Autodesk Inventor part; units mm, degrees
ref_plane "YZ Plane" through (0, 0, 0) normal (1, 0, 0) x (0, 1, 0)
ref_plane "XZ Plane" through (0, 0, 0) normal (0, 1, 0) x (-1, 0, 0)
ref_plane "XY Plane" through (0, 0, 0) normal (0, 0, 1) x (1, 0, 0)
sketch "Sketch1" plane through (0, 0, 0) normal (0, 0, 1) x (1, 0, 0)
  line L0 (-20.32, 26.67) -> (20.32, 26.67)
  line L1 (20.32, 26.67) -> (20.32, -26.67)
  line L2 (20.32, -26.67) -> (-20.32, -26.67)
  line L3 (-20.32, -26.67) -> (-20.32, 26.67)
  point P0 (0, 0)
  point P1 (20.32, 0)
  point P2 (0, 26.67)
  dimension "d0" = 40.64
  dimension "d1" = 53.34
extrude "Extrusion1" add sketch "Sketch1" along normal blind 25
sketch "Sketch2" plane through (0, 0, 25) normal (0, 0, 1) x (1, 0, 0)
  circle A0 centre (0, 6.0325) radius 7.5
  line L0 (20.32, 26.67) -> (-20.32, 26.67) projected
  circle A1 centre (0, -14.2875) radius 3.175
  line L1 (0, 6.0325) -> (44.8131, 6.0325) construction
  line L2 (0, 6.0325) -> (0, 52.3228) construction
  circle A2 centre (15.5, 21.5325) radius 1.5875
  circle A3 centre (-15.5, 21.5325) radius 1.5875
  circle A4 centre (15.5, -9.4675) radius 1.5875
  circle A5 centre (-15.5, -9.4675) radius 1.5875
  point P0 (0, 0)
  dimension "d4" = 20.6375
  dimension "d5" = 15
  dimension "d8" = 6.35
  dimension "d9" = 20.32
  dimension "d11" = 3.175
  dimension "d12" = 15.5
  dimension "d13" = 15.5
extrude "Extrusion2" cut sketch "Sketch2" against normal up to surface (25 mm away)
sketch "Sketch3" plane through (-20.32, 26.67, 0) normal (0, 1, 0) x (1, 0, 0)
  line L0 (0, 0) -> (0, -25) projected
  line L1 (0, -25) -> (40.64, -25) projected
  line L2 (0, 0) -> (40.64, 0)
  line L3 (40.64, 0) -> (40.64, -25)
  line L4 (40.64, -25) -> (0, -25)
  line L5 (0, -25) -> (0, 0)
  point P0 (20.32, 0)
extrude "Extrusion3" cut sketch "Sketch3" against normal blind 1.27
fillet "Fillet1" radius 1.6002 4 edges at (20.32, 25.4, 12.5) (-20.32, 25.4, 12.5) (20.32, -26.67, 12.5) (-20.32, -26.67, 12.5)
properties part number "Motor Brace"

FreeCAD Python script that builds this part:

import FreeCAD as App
import Part
import Sketcher
Q = App.Units.Quantity


def edges_at(feature, points):
    """Names of the edges that pass closest to the given points."""
    edges = feature.Shape.Edges
    near = lambda p: min(range(len(edges)), key=lambda i: edges[i].distToShape(Part.Vertex(*p))[0])
    return sorted({f"Edge{near(p) + 1}" for p in points})


def add_polygon(sketch, points):
    """Adds a closed chain of lines whose ends are joined by coincident constraints."""
    first, n = sketch.GeometryCount, len(points)
    for a, b in zip(points, points[1:] + points[:1]):
        sketch.addGeometry(Part.LineSegment(App.Vector(*a, 0), App.Vector(*b, 0)), False)
    for i in range(n):
        sketch.addConstraint(Sketcher.Constraint("Coincident", first + i, 2, first + (i + 1) % n, 1))

doc = App.newDocument("Part")
body = doc.addObject("PartDesign::Body", "Body")

# Sketch on XY plane
sketch1 = doc.addObject("Sketcher::SketchObject", "Sketch")
body.addObject(sketch1)
sketch1.AttachmentSupport = (doc.XY_Plane, [""])
sketch1.MapMode = "FlatFace"
add_polygon(sketch1, [(20.32, 26.67), (-20.32, 26.67), (-20.32, -26.67), (20.32, -26.67)])  # lines 0-3
sketch1.addConstraint(Sketcher.Constraint("Horizontal", 0))
sketch1.addConstraint(Sketcher.Constraint("Vertical", 1))
sketch1.addConstraint(Sketcher.Constraint("Horizontal", 2))
sketch1.addConstraint(Sketcher.Constraint("Vertical", 3))
sketch1.addConstraint(Sketcher.Constraint("Symmetric", 0, 2, 2, 2, -1, 1))
sketch1.addConstraint(Sketcher.Constraint("DistanceX", 0, 2, 0, 1, Q("1.6 in")))
sketch1.addConstraint(Sketcher.Constraint("DistanceY", 1, 2, 1, 1, Q("2.1 in")))
pad1 = doc.addObject("PartDesign::Pad", "Pad")
body.addObject(pad1)
pad1.Profile = sketch1
pad1.Length = 25

# Sketch on XY plane
sketch2 = doc.addObject("Sketcher::SketchObject", "Sketch001")
body.addObject(sketch2)
sketch2.AttachmentSupport = (doc.XY_Plane, [""])
sketch2.MapMode = "FlatFace"
sketch2.AttachmentOffset = App.Placement(App.Vector(0, 0, 25), App.Rotation())
sketch2.addGeometry(Part.Circle(App.Vector(0, 6.0325, 0), App.Vector(0, 0, 1), 7.5), False)
sketch2.addGeometry(Part.Circle(App.Vector(0, -14.2875, 0), App.Vector(0, 0, 1), 3.175), False)
sketch2.addGeometry(Part.Circle(App.Vector(15.5, 21.5325, 0), App.Vector(0, 0, 1), 1.5875), False)
sketch2.addGeometry(Part.Circle(App.Vector(-15.5, 21.5325, 0), App.Vector(0, 0, 1), 1.5875), False)
sketch2.addGeometry(Part.Circle(App.Vector(15.5, -9.4675, 0), App.Vector(0, 0, 1), 1.5875), False)
sketch2.addGeometry(Part.Circle(App.Vector(-15.5, -9.4675, 0), App.Vector(0, 0, 1), 1.5875), False)
sketch2.addConstraint(Sketcher.Constraint("Equal", 2, 3))
sketch2.addConstraint(Sketcher.Constraint("Equal", 3, 4))
sketch2.addConstraint(Sketcher.Constraint("Equal", 4, 5))
sketch2.addConstraint(Sketcher.Constraint("Symmetric", 2, 3, 3, 3, -2))
sketch2.addConstraint(Sketcher.Constraint("Symmetric", 4, 3, 5, 3, -2))
sketch2.addConstraint(Sketcher.Constraint("PointOnObject", 0, 3, -2))
sketch2.addConstraint(Sketcher.Constraint("PointOnObject", 1, 3, -2))
sketch2.addConstraint(Sketcher.Constraint("Vertical", 2, 3, 4, 3))
sketch2.addConstraint(Sketcher.Constraint("Diameter", 1, Q("0.25 in")))
sketch2.addConstraint(Sketcher.Constraint("Diameter", 2, Q("0.125 in")))
sketch2.addConstraint(Sketcher.Constraint("DistanceY", 1, 3, 0, 3, Q("0.8 in")))
sketch2.addConstraint(Sketcher.Constraint("Diameter", 0, Q("15 mm")))
sketch2.addConstraint(Sketcher.Constraint("DistanceX", -1, 1, 2, 3, Q("15.5 mm")))
sketch2.addConstraint(Sketcher.Constraint("DistanceY", 0, 3, 2, 3, Q("15.5 mm")))
sketch2.addConstraint(Sketcher.Constraint("DistanceY", 4, 3, 0, 3, Q("15.5 mm")))
sketch2.addConstraint(Sketcher.Constraint("DistanceY", 1, 3, -1, 1, Q("0.5625 in")))
pocket1 = doc.addObject("PartDesign::Pocket", "Pocket")
body.addObject(pocket1)
pocket1.Profile = sketch2
pocket1.Length = 25

# Sketch on XZ plane
sketch3 = doc.addObject("Sketcher::SketchObject", "Sketch002")
body.addObject(sketch3)
sketch3.AttachmentSupport = (doc.XZ_Plane, [""])
sketch3.MapMode = "FlatFace"
sketch3.AttachmentOffset = App.Placement(App.Vector(0, 0, -1.05 * 25.4), App.Rotation())
add_polygon(sketch3, [(20.32, 0), (-20.32, 0), (-20.32, 25), (20.32, 25)])  # lines 0-3
sketch3.addConstraint(Sketcher.Constraint("Horizontal", 0))
sketch3.addConstraint(Sketcher.Constraint("Vertical", 1))
sketch3.addConstraint(Sketcher.Constraint("Horizontal", 2))
sketch3.addConstraint(Sketcher.Constraint("Vertical", 3))
sketch3.addConstraint(Sketcher.Constraint("Symmetric", 0, 2, 3, 2, -1, 1))
sketch3.addConstraint(Sketcher.Constraint("DistanceX", 0, 2, 0, 1, Q("1.6 in")))
sketch3.addConstraint(Sketcher.Constraint("DistanceY", 1, 1, 1, 2, Q("25 mm")))
pocket2 = doc.addObject("PartDesign::Pocket", "Pocket001")
body.addObject(pocket2)
pocket2.Profile = sketch3
pocket2.Length = Q("0.05 in")
pocket2.Reversed = True
doc.recompute()

fillet = doc.addObject("PartDesign::Fillet", "Fillet")
body.addObject(fillet)
fillet.Base = (pocket2, edges_at(pocket2, [
    (20.32, 25.4, 12.5),
    (-20.32, 25.4, 12.5),
    (20.32, -26.67, 12.5),
    (-20.32, -26.67, 12.5),
]))
fillet.Radius = Q("0.063 in")

doc.recompute()
